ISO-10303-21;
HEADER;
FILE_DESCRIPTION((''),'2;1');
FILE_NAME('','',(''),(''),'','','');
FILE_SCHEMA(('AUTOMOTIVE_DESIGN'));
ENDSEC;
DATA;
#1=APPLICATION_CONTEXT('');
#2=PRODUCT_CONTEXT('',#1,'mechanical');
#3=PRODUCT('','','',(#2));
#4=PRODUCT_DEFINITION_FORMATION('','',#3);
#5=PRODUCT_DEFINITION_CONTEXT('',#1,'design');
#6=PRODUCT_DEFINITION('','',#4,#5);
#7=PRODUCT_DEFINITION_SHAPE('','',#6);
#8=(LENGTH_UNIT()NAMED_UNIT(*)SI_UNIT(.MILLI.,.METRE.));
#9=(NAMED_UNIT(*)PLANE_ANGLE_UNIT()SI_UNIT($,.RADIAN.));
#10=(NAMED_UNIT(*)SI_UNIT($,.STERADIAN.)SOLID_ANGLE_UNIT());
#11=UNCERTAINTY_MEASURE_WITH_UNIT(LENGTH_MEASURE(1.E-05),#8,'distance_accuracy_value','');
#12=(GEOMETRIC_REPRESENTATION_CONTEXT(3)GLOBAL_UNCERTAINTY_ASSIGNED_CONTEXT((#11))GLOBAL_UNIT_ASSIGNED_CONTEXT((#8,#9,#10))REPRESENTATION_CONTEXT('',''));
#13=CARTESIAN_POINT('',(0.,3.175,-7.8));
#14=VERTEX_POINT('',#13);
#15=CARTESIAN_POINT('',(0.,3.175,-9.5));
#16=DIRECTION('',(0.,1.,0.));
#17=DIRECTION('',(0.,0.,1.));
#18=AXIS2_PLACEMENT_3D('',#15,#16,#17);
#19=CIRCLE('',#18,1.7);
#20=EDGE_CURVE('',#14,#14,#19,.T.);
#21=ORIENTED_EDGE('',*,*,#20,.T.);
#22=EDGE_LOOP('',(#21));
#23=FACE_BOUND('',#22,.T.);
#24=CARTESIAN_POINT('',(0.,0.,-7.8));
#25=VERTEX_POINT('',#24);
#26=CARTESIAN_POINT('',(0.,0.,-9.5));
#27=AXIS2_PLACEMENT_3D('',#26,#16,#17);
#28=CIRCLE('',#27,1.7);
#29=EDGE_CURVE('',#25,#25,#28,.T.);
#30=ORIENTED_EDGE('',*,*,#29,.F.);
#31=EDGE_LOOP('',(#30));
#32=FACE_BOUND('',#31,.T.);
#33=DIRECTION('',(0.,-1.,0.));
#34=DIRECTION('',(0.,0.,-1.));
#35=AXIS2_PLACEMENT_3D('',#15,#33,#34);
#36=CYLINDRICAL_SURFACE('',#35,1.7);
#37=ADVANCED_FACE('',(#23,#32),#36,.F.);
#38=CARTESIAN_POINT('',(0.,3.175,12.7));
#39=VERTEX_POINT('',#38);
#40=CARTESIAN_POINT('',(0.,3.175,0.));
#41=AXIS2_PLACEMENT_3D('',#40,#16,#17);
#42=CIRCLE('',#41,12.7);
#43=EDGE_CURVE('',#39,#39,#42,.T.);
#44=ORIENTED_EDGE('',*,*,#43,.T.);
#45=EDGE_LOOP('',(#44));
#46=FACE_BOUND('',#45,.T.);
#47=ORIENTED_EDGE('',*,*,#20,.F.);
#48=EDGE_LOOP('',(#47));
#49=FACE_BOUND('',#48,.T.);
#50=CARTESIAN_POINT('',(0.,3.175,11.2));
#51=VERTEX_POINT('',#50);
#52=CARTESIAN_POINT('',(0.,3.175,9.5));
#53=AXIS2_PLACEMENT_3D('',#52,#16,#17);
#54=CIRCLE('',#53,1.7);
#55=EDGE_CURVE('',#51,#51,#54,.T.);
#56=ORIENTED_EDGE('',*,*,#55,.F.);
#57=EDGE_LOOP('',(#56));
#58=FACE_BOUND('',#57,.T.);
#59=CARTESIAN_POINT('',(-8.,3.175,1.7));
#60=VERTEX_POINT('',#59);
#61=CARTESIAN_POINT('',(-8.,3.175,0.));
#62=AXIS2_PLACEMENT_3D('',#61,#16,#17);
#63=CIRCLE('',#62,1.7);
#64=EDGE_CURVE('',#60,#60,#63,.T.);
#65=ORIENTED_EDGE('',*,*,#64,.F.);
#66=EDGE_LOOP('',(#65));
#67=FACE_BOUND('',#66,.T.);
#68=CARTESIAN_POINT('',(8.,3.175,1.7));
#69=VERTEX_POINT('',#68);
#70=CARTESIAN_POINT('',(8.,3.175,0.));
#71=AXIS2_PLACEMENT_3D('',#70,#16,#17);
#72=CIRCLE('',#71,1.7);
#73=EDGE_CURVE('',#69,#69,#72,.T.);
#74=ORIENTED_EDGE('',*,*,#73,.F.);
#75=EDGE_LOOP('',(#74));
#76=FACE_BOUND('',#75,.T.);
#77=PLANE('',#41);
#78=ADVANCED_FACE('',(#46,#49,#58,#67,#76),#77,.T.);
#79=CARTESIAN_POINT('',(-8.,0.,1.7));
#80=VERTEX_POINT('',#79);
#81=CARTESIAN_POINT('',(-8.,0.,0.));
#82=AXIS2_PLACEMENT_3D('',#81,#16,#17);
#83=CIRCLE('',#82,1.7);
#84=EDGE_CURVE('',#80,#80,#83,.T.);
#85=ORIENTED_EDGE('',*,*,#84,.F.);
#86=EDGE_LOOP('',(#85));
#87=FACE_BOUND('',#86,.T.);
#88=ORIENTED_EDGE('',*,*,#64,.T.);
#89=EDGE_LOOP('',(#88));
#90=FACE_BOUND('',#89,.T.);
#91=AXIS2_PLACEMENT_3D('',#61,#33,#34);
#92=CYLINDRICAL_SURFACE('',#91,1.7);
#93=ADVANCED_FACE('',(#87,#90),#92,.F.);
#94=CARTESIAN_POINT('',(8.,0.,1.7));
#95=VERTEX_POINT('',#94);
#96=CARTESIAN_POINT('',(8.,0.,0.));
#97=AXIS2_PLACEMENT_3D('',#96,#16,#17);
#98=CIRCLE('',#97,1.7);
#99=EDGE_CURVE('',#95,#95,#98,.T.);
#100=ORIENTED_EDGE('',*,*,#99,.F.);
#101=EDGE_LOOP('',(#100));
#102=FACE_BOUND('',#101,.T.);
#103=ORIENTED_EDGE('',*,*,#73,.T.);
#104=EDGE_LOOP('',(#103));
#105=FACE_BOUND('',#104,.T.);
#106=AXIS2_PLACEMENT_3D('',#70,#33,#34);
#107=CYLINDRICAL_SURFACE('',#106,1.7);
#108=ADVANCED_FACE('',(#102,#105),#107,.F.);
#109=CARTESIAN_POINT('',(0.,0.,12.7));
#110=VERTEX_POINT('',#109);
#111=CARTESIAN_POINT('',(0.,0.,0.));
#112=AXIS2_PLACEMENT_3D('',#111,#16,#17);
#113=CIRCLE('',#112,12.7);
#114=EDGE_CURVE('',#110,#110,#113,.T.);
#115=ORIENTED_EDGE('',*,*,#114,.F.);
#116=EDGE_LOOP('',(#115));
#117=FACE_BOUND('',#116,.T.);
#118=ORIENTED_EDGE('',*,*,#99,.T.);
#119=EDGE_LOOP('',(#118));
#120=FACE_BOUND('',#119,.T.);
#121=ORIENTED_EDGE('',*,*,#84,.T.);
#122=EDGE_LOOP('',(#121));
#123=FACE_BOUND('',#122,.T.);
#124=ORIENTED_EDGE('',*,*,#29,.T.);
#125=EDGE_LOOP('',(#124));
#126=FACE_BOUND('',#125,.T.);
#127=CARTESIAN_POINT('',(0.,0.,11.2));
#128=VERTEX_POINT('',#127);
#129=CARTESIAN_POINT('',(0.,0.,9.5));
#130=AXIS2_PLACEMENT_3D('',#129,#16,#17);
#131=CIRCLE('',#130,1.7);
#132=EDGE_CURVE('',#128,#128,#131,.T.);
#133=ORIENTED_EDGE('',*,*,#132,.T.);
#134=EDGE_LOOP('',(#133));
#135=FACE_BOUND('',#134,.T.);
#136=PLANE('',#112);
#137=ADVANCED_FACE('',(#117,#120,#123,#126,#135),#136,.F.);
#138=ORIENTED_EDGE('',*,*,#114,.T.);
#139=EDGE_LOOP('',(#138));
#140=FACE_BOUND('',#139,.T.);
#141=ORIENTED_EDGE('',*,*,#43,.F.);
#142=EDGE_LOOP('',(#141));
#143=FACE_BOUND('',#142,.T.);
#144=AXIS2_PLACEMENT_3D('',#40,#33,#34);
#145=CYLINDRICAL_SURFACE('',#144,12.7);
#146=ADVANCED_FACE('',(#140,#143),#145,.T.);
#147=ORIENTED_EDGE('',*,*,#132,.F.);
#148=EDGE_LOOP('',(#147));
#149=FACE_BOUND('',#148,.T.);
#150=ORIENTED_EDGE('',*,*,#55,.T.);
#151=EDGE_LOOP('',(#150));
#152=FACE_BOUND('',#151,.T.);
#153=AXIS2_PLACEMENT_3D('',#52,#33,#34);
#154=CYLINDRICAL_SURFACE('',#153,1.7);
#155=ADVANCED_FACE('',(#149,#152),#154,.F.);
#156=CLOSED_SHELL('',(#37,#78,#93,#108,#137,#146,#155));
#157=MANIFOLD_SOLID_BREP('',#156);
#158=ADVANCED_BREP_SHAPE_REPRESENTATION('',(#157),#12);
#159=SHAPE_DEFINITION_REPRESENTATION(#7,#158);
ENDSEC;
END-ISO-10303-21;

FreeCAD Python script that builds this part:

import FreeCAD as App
import Part
import Sketcher
Q = App.Units.Quantity

doc = App.newDocument("Part")
body = doc.addObject("PartDesign::Body", "Body")

# Sketch on XZ plane
sketch1 = doc.addObject("Sketcher::SketchObject", "Sketch")
body.addObject(sketch1)
sketch1.AttachmentSupport = (doc.XZ_Plane, [""])
sketch1.MapMode = "FlatFace"
sketch1.addGeometry([
    Part.Circle(App.Vector(0, 0, 0), App.Vector(0, 0, 1), 12.7),  # 0
    Part.Circle(App.Vector(0, 9.5, 0), App.Vector(0, 0, 1), 1.7),  # 1
    Part.Circle(App.Vector(-8, 0, 0), App.Vector(0, 0, 1), 1.7),  # 2
    Part.Circle(App.Vector(8, 0, 0), App.Vector(0, 0, 1), 1.7),  # 3
    Part.Circle(App.Vector(0, -9.5, 0), App.Vector(0, 0, 1), 1.7),  # 4
], False)
sketch1.addConstraint([
    Sketcher.Constraint("Coincident", 0, 3, -1, 1),
    Sketcher.Constraint("Equal", 1, 2),
    Sketcher.Constraint("Equal", 2, 3),
    Sketcher.Constraint("Equal", 3, 4),
    Sketcher.Constraint("Symmetric", 2, 3, 3, 3, -1, 1),
    Sketcher.Constraint("Symmetric", 1, 3, 4, 3, -1, 1),
    Sketcher.Constraint("PointOnObject", 1, 3, -2),
    Sketcher.Constraint("PointOnObject", 2, 3, -1),
    Sketcher.Constraint("Diameter", 0, Q("1 in")),
    Sketcher.Constraint("Diameter", 1, 3.4),
    Sketcher.Constraint("DistanceY", -1, 1, 1, 3, 9.5),
    Sketcher.Constraint("DistanceX", 2, 3, -1, 1, 8.0),
])
pad1 = doc.addObject("PartDesign::Pad", "Pad")
body.addObject(pad1)
pad1.Profile = sketch1
pad1.Length = Q("0.125 in")
pad1.Reversed = True

doc.recompute()
